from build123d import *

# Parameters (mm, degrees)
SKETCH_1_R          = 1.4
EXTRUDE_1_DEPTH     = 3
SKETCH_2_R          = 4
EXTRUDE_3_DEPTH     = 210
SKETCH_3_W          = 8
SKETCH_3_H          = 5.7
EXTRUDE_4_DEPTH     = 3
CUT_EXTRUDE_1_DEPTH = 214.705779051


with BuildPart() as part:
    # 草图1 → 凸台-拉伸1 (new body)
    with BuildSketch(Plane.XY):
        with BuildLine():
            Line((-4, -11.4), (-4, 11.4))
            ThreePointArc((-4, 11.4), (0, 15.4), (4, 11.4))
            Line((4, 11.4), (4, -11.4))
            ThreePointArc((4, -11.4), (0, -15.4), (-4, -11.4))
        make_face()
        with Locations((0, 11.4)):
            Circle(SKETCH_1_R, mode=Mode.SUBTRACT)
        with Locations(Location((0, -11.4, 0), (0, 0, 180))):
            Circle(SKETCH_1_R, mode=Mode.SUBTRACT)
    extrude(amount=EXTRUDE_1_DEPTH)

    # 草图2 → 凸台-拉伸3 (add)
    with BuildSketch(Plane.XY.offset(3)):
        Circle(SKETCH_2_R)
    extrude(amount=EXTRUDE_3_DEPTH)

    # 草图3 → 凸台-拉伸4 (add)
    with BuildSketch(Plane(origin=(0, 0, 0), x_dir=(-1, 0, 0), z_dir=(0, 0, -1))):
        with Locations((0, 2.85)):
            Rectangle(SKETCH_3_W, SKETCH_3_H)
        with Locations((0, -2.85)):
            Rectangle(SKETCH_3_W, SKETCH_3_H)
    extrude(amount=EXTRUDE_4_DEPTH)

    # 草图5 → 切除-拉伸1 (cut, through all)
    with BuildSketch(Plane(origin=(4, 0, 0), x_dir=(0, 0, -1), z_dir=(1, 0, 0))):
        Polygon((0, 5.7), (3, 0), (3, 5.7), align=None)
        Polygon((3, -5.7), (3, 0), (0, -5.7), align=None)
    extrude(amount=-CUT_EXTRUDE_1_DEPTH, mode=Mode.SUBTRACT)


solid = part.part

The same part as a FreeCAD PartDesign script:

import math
import FreeCAD as App
import Part
import Sketcher

V = App.Vector


def add_polygon(sketch, points):
    """Adds a closed chain of lines whose ends are joined by coincident constraints."""
    first, n = sketch.GeometryCount, len(points)
    for a, b in zip(points, points[1:] + points[:1]):
        sketch.addGeometry(Part.LineSegment(App.Vector(*a, 0), App.Vector(*b, 0)), False)
    for i in range(n):
        sketch.addConstraint(Sketcher.Constraint("Coincident", first + i, 2, first + (i + 1) % n, 1))

doc = App.newDocument("Part")
body = doc.addObject("PartDesign::Body", "Body")

# Sketch on XY plane
sketch1 = body.newObject("Sketcher::SketchObject", "Sketch")
sketch1.AttachmentSupport = (doc.getObject("XY_Plane"), [""])
sketch1.MapMode = "FlatFace"
sketch1.addGeometry([
    Part.LineSegment(V(-4, 11.4, 0), V(-4, -11.4, 0)),  # 0
    Part.ArcOfCircle(Part.Circle(V(0, -11.4, 0), V(0, 0, 1), 4), math.radians(180), math.radians(360)),  # 1
    Part.LineSegment(V(4, -11.4, 0), V(4, 11.4, 0)),  # 2
    Part.ArcOfCircle(Part.Circle(V(0, 11.4, 0), V(0, 0, 1), 4), math.radians(0), math.radians(180)),  # 3
    Part.Circle(V(0, -11.4, 0), V(0, 0, 1), 1.4),  # 4
    Part.Circle(V(0, 11.4, 0), V(0, 0, 1), 1.4),  # 5
], False)
sketch1.addConstraint([
    Sketcher.Constraint("Tangent", 0, 2, 1, 1),
    Sketcher.Constraint("Tangent", 1, 2, 2, 1),
    Sketcher.Constraint("Tangent", 2, 2, 3, 1),
    Sketcher.Constraint("Tangent", 3, 2, 0, 1),
    Sketcher.Constraint("Vertical", 0),
    Sketcher.Constraint("Vertical", 2),
    Sketcher.Constraint("Coincident", 4, 3, 1, 3),
    Sketcher.Constraint("Coincident", 5, 3, 3, 3),
    Sketcher.Constraint("Equal", 4, 5),
    Sketcher.Constraint("Symmetric", 1, 3, 3, 3, -1, 1),
    Sketcher.Constraint("Radius", 1, 4.0),
    Sketcher.Constraint("Diameter", 4, 2.8),
    Sketcher.Constraint("DistanceY", 0, 2, 0, 1, 22.8),
])
pad1 = body.newObject("PartDesign::Pad", "Pad")
pad1.Profile = sketch1
pad1.Length = 3

# Sketch on XY plane
sketch2 = body.newObject("Sketcher::SketchObject", "Sketch001")
sketch2.AttachmentSupport = (doc.getObject("XY_Plane"), [""])
sketch2.MapMode = "FlatFace"
sketch2.AttachmentOffset = App.Placement(V(0, 0, 3), App.Rotation())
sketch2.addGeometry(Part.Circle(V(0, 0, 0), V(0, 0, 1), 4), False)
sketch2.addConstraint([
    Sketcher.Constraint("Coincident", 0, 3, -1, 1),
    Sketcher.Constraint("Diameter", 0, 8.0),
])
pad2 = body.newObject("PartDesign::Pad", "Pad001")
pad2.Profile = sketch2
pad2.Length = 210

# Sketch on XY plane
sketch3 = body.newObject("Sketcher::SketchObject", "Sketch002")
sketch3.AttachmentSupport = (doc.getObject("XY_Plane"), [""])
sketch3.MapMode = "FlatFace"
add_polygon(sketch3, [(4, 6), (4, -6), (-4, -6), (-4, 6)])  # lines 0-3
sketch3.addConstraint([
    Sketcher.Constraint("Vertical", 0),
    Sketcher.Constraint("Horizontal", 1),
    Sketcher.Constraint("Vertical", 2),
    Sketcher.Constraint("Horizontal", 3),
    Sketcher.Constraint("Symmetric", 0, 2, 2, 2, -1, 1),
    Sketcher.Constraint("DistanceX", 1, 2, 1, 1, 8.0),
    Sketcher.Constraint("DistanceY", 0, 2, 0, 1, 11.4),
])
pad3 = body.newObject("PartDesign::Pad", "Pad002")
pad3.Profile = sketch3
pad3.Length = 3
pad3.Reversed = True

# Sketch on YZ plane
sketch4 = body.newObject("Sketcher::SketchObject", "Sketch003")
sketch4.AttachmentSupport = (doc.getObject("YZ_Plane"), [""])
sketch4.MapMode = "FlatFace"
sketch4.AttachmentOffset = App.Placement(V(0, 0, 4), App.Rotation())
add_polygon(sketch4, [(5.7, 0), (0, -3), (5.7, -3)])  # lines 0-2
add_polygon(sketch4, [(-5.7, -3), (0, -3), (-5.7, 0)])  # lines 3-5
sketch4.addConstraint([
    Sketcher.Constraint("Horizontal", 1),
    Sketcher.Constraint("Vertical", 2),
    Sketcher.Constraint("Horizontal", 3),
    Sketcher.Constraint("Vertical", 5),
    Sketcher.Constraint("Coincident", 3, 2, 0, 2),
    Sketcher.Constraint("Symmetric", 2, 2, 4, 2, -1, 1),
    Sketcher.Constraint("PointOnObject", 0, 2, -2),
    Sketcher.Constraint("PointOnObject", 2, 2, -1),
    Sketcher.Constraint("DistanceY", 2, 1, 2, 2, 3.0),
    Sketcher.Constraint("DistanceX", 1, 1, 1, 2, 5.7),
])
pocket1 = body.newObject("PartDesign::Pocket", "Pocket")
pocket1.Profile = sketch4
pocket1.Type = "ThroughAll"

doc.recompute()
